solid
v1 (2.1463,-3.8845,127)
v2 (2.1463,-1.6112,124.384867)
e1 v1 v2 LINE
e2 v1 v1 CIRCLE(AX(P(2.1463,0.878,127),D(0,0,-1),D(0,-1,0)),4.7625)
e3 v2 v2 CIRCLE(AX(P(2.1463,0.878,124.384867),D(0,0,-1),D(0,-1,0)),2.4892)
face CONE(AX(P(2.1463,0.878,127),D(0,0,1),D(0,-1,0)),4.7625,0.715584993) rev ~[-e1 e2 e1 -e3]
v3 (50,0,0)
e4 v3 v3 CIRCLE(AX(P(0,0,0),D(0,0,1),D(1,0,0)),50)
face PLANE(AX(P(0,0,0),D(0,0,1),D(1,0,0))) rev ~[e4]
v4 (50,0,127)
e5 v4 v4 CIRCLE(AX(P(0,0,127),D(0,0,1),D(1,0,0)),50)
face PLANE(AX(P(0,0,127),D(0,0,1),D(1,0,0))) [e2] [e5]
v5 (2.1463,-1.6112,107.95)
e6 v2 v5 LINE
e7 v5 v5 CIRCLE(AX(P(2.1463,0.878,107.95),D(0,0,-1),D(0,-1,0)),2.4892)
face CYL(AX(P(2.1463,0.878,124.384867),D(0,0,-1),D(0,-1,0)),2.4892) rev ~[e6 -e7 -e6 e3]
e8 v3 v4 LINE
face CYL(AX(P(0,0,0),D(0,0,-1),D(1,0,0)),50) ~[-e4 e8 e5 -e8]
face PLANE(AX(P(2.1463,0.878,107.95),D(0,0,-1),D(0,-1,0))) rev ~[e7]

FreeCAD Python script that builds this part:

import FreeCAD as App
import Part
import Sketcher
Q = App.Units.Quantity

doc = App.newDocument("Part")
params = doc.addObject("Spreadsheet::Sheet", "Params")
for row, (alias, value) in enumerate([
    ("sketch1_diameter", "3.937 in"),
    ("pad1_length", "5 in"),
    ("hole_diameter", "5 mm"),
    ("hole_depth", "1 in"),
    ("sketch3_diameter", "0.196 in"),
    ("hole2_diameter", "0.196 in"),
    ("hole2_depth", "0.75 in"),
    ("hole2_csink_diameter", "0.375 in"),
], start=1):
    params.set(f"A{row}", alias)
    params.set(f"B{row}", "=" + value)
    params.setAlias(f"B{row}", alias)

body = doc.addObject("PartDesign::Body", "Body")

sketch1 = doc.addObject("Sketcher::SketchObject", "Sketch")
body.addObject(sketch1)
sketch1.AttachmentSupport = (doc.XY_Plane, [""])
sketch1.MapMode = "FlatFace"
sketch1.addGeometry(Part.Circle(App.Vector(0, 0, 0), App.Vector(0, 0, 1), 50), False)
sketch1.addConstraint([
    Sketcher.Constraint("Coincident", 0, 3, -1, 1),
    Sketcher.Constraint("Diameter", 0, Q("3.937 in")),
])
sketch1.setExpression("Constraints[1]", "Params.sketch1_diameter")
pad1 = doc.addObject("PartDesign::Pad", "Pad")
body.addObject(pad1)
pad1.Profile = sketch1
pad1.setExpression("Length", "Params.pad1_length")

sketch2 = doc.addObject("Sketcher::SketchObject", "Sketch001")
body.addObject(sketch2)
sketch2.AttachmentSupport = (doc.XY_Plane, [""])
sketch2.MapMode = "FlatFace"
sketch2.addGeometry(Part.Circle(App.Vector(-3, -0.3, 0), App.Vector(0, 0, 1), 2.5), False)
sketch2.addConstraint([
    Sketcher.Constraint("Diameter", 0, 5.0),
    Sketcher.Constraint("DistanceX", 0, 3, -1, 1, 3.0158),
    Sketcher.Constraint("DistanceY", 0, 3, -1, 1, 0.2622),
])
doc.recompute()
hole = doc.addObject("PartDesign::Hole", "Hole")
body.addObject(hole)
hole.Profile = sketch2
hole.ThreadType = "None"
hole.setExpression("Diameter", "Params.hole_diameter")
hole.DepthType = "Dimension"
hole.setExpression("Depth", "Params.hole_depth")
hole.DrillPoint = "Angled"
hole.DrillPointAngle = 118

sketch3 = doc.addObject("Sketcher::SketchObject", "Sketch002")
body.addObject(sketch3)
sketch3.AttachmentSupport = (doc.XY_Plane, [""])
sketch3.MapMode = "FlatFace"
sketch3.AttachmentOffset = App.Placement(App.Vector(0, 0, 5 * 25.4), App.Rotation())
sketch3.addGeometry(Part.Circle(App.Vector(2.1, 0.9, 0), App.Vector(0, 0, 1), 2.5), False)
sketch3.addConstraint([
    Sketcher.Constraint("Diameter", 0, Q("0.196 in")),
    Sketcher.Constraint("DistanceX", -1, 1, 0, 3, Q("0.0845 in")),
    Sketcher.Constraint("DistanceY", -1, 1, 0, 3, 0.878),
])
sketch3.setExpression("Constraints[0]", "Params.sketch3_diameter")
doc.recompute()
hole2 = doc.addObject("PartDesign::Hole", "Hole001")
body.addObject(hole2)
hole2.Profile = sketch3
hole2.ThreadType = "None"
hole2.setExpression("Diameter", "Params.hole2_diameter")
hole2.DepthType = "Dimension"
hole2.setExpression("Depth", "Params.hole2_depth")
hole2.DrillPoint = "Flat"
hole2.HoleCutType = "Countersink"
hole2.setExpression("HoleCutDiameter", "Params.hole2_csink_diameter")
hole2.HoleCutCountersinkAngle = 82

doc.recompute()
